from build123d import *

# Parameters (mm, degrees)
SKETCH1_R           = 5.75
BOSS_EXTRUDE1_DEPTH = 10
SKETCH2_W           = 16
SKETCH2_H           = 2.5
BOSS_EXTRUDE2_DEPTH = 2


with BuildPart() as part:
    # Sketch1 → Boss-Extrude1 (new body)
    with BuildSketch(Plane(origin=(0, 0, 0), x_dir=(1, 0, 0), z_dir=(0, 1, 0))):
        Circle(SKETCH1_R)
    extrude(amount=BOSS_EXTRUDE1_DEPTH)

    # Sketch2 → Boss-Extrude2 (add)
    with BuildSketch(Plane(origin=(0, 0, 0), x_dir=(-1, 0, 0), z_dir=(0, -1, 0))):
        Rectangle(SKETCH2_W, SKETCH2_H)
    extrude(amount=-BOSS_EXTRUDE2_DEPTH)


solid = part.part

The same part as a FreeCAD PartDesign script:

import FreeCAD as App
import Part
import Sketcher


def add_polygon(sketch, points):
    """Adds a closed chain of lines whose ends are joined by coincident constraints."""
    first, n = sketch.GeometryCount, len(points)
    for a, b in zip(points, points[1:] + points[:1]):
        sketch.addGeometry(Part.LineSegment(App.Vector(*a, 0), App.Vector(*b, 0)), False)
    for i in range(n):
        sketch.addConstraint(Sketcher.Constraint("Coincident", first + i, 2, first + (i + 1) % n, 1))

doc = App.newDocument("Part")
body = doc.addObject("PartDesign::Body", "Body")

# Sketch on XZ plane
sketch1 = doc.addObject("Sketcher::SketchObject", "Sketch")
body.addObject(sketch1)
sketch1.AttachmentSupport = (doc.XZ_Plane, [""])
sketch1.MapMode = "FlatFace"
sketch1.addGeometry(Part.Circle(App.Vector(0, 0, 0), App.Vector(0, 0, 1), 6), False)
sketch1.addConstraint([
    Sketcher.Constraint("Coincident", 0, 3, -1, 1),
    Sketcher.Constraint("Diameter", 0, 11.5),
])
pad1 = doc.addObject("PartDesign::Pad", "Pad")
body.addObject(pad1)
pad1.Profile = sketch1
pad1.Length = 10
pad1.Reversed = True

# Sketch on XZ plane
sketch2 = doc.addObject("Sketcher::SketchObject", "Sketch001")
body.addObject(sketch2)
sketch2.AttachmentSupport = (doc.XZ_Plane, [""])
sketch2.MapMode = "FlatFace"
add_polygon(sketch2, [(8, -1.2), (8, 1.2), (-8, 1.2), (-8, -1.2)])  # lines 0-3
sketch2.addConstraint([
    Sketcher.Constraint("Vertical", 0),
    Sketcher.Constraint("Horizontal", 1),
    Sketcher.Constraint("Vertical", 2),
    Sketcher.Constraint("Horizontal", 3),
    Sketcher.Constraint("Symmetric", 0, 2, 2, 2, -1, 1),
    Sketcher.Constraint("DistanceX", 1, 2, 1, 1, 16.0),
    Sketcher.Constraint("DistanceY", 0, 1, 0, 2, 2.5),
])
pad2 = doc.addObject("PartDesign::Pad", "Pad001")
body.addObject(pad2)
pad2.Profile = sketch2
pad2.Length = 2
pad2.Reversed = True

doc.recompute()
